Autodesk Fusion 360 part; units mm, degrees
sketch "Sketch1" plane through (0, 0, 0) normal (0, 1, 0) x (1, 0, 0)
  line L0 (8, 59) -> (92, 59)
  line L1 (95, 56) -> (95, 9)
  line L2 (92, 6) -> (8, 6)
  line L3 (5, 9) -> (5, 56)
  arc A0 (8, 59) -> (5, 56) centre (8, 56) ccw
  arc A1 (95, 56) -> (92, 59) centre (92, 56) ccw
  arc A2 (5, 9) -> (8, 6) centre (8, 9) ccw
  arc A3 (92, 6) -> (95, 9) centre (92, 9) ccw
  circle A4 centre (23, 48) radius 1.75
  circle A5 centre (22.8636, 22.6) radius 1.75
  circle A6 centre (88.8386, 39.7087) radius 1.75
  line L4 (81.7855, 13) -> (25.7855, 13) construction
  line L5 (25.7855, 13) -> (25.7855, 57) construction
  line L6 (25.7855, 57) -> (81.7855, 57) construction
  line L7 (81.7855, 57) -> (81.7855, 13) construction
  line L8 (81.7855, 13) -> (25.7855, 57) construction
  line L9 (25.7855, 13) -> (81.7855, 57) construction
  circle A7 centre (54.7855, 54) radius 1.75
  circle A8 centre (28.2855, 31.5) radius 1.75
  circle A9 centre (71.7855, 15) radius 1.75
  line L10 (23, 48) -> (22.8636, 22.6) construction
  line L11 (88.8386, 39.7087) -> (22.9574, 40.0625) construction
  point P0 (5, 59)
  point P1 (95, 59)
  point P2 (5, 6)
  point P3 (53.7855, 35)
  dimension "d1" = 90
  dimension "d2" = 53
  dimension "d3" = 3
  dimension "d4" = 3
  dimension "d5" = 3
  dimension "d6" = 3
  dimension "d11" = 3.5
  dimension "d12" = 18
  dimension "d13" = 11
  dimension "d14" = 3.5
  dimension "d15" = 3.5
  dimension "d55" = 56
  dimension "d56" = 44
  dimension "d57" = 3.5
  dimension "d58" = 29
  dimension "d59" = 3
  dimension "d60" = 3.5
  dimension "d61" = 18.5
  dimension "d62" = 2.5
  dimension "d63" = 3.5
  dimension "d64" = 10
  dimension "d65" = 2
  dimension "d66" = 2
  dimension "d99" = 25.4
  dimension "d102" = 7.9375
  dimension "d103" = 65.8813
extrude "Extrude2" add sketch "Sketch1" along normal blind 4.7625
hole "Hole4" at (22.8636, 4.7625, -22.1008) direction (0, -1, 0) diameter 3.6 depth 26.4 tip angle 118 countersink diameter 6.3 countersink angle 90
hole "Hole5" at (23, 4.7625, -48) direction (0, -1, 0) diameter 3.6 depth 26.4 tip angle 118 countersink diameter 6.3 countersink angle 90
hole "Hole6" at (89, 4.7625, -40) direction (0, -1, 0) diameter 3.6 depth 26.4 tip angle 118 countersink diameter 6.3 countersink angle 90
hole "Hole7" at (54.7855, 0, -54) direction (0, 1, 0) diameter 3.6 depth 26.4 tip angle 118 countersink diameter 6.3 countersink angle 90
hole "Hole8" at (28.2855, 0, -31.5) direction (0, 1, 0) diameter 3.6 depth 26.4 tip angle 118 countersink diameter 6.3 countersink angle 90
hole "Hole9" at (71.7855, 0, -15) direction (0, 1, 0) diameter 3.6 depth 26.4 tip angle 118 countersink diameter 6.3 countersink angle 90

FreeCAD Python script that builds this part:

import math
import FreeCAD as App
import Part
import Sketcher

V = App.Vector
Q = App.Units.Quantity

doc = App.newDocument("Part")
params = doc.addObject("Spreadsheet::Sheet", "Params")
for row, (alias, value) in enumerate([
    ("sketch1_radius", "3 mm"),
    ("sketch1_diameter", "3.5 mm"),
    ("sketch1_width", "84 mm"),
    ("sketch1_height", "47 mm"),
    ("pad1_length", "4.7625 mm"),
    ("sketch2_diameter", "3.6 mm"),
    ("hole_diameter", "3.6 mm"),
    ("hole_depth", "26.4 mm"),
    ("hole_csink_diameter", "6.3 mm"),
    ("sketch3_diameter", "3.6 mm"),
    ("hole2_diameter", "3.6 mm"),
    ("hole2_depth", "26.4 mm"),
    ("hole2_csink_diameter", "6.3 mm"),
    ("sketch4_diameter", "3.6 mm"),
    ("hole3_diameter", "3.6 mm"),
    ("hole3_depth", "26.4 mm"),
    ("hole3_csink_diameter", "6.3 mm"),
    ("sketch5_diameter", "3.6 mm"),
    ("hole4_diameter", "3.6 mm"),
    ("hole4_depth", "26.4 mm"),
    ("hole4_csink_diameter", "6.3 mm"),
    ("sketch6_diameter", "3.6 mm"),
    ("hole5_diameter", "3.6 mm"),
    ("hole5_depth", "26.4 mm"),
    ("hole5_csink_diameter", "6.3 mm"),
    ("sketch7_diameter", "3.6 mm"),
    ("hole6_diameter", "3.6 mm"),
    ("hole6_depth", "26.4 mm"),
    ("hole6_csink_diameter", "6.3 mm"),
], start=1):
    params.set(f"A{row}", alias)
    params.set(f"B{row}", "=" + value)
    params.setAlias(f"B{row}", alias)

body = doc.addObject("PartDesign::Body", "Body")

sketch1 = doc.addObject("Sketcher::SketchObject", "Sketch")
body.addObject(sketch1)
sketch1.AttachmentSupport = (doc.XZ_Plane, [""])
sketch1.MapMode = "FlatFace"
sketch1.addGeometry([
    Part.LineSegment(V(92, -59, 0), V(8, -59, 0)),
    Part.ArcOfCircle(Part.Circle(V(8, -56, 0), V(0, 0, 1), 3), math.radians(180), math.radians(270)),
    Part.LineSegment(V(5, -56, 0), V(5, -9, 0)),
    Part.ArcOfCircle(Part.Circle(V(8, -9, 0), V(0, 0, 1), 3), math.radians(90), math.radians(180)),
    Part.LineSegment(V(8, -6, 0), V(92, -6, 0)),
    Part.ArcOfCircle(Part.Circle(V(92, -9, 0), V(0, 0, 1), 3), math.radians(0), math.radians(90)),
    Part.LineSegment(V(95, -9, 0), V(95, -56, 0)),
    Part.ArcOfCircle(Part.Circle(V(92, -56, 0), V(0, 0, 1), 3), math.radians(-90), math.radians(0)),
    Part.Circle(V(22.9, -22.6, 0), V(0, 0, 1), 1.8),
    Part.Circle(V(28.3, -31.5, 0), V(0, 0, 1), 1.8),
    Part.Circle(V(71.8, -15, 0), V(0, 0, 1), 1.8),
    Part.Circle(V(23, -48, 0), V(0, 0, 1), 1.8),
    Part.Circle(V(88.8, -39.7, 0), V(0, 0, 1), 1.8),
    Part.Circle(V(54.8, -54, 0), V(0, 0, 1), 1.8),
], False)
sketch1.addConstraint([
    Sketcher.Constraint("Tangent", 0, 2, 1, 2),
    Sketcher.Constraint("Tangent", 1, 1, 2, 1),
    Sketcher.Constraint("Tangent", 2, 2, 3, 2),
    Sketcher.Constraint("Tangent", 3, 1, 4, 1),
    Sketcher.Constraint("Tangent", 4, 2, 5, 2),
    Sketcher.Constraint("Tangent", 5, 1, 6, 1),
    Sketcher.Constraint("Tangent", 6, 2, 7, 2),
    Sketcher.Constraint("Tangent", 7, 1, 0, 1),
    Sketcher.Constraint("Horizontal", 0),
    Sketcher.Constraint("Vertical", 2),
    Sketcher.Constraint("Horizontal", 4),
    Sketcher.Constraint("Vertical", 6),
    Sketcher.Constraint("Equal", 1, 3),
    Sketcher.Constraint("Equal", 3, 5),
    Sketcher.Constraint("Equal", 5, 7),
    Sketcher.Constraint("Equal", 8, 9),
    Sketcher.Constraint("Equal", 9, 10),
    Sketcher.Constraint("Equal", 10, 11),
    Sketcher.Constraint("Equal", 11, 12),
    Sketcher.Constraint("Equal", 12, 13),
    Sketcher.Constraint("Radius", 1, Q("3 mm")),
    Sketcher.Constraint("Diameter", 8, Q("3.5 mm")),
    Sketcher.Constraint("DistanceY", 1, 3, -1, 1, Q("56 mm")),
    Sketcher.Constraint("DistanceY", 7, 3, 13, 3, Q("2 mm")),
    Sketcher.Constraint("DistanceY", 0, 2, 11, 3, Q("11 mm")),
    Sketcher.Constraint("DistanceX", 1, 1, 11, 3, Q("18 mm")),
    Sketcher.Constraint("DistanceY", 7, 1, 10, 3, Q("44 mm")),
    Sketcher.Constraint("DistanceY", 11, 3, 8, 3, Q("25.4 mm")),
    Sketcher.Constraint("DistanceX", 0, 2, 0, 1, Q("84 mm")),
    Sketcher.Constraint("DistanceY", 2, 1, 2, 2, Q("47 mm")),
    Sketcher.Constraint("DistanceX", -1, 1, 1, 3, Q("8 mm")),
    Sketcher.Constraint("DistanceX", 13, 3, 10, 3, Q("17 mm")),
    Sketcher.Constraint("DistanceY", 9, 3, -1, 1, Q("31.5 mm")),
    Sketcher.Constraint("DistanceX", 9, 3, 10, 3, Q("43.5 mm")),
    Sketcher.Constraint("DistanceX", 8, 3, 9, 3, Q("5.422 mm")),
    Sketcher.Constraint("DistanceX", 10, 3, 12, 3, Q("17.053 mm")),
    Sketcher.Constraint("DistanceX", -1, 1, 8, 3, Q("22.8636 mm")),
    Sketcher.Constraint("DistanceY", 12, 3, -1, 1, Q("39.7087 mm")),
])
sketch1.setExpression("Constraints[20]", "Params.sketch1_radius")
sketch1.setExpression("Constraints[21]", "Params.sketch1_diameter")
sketch1.setExpression("Constraints[28]", "Params.sketch1_width")
sketch1.setExpression("Constraints[29]", "Params.sketch1_height")
pad1 = doc.addObject("PartDesign::Pad", "Pad")
body.addObject(pad1)
pad1.Profile = sketch1
pad1.setExpression("Length", "Params.pad1_length")
pad1.Reversed = True

sketch2 = doc.addObject("Sketcher::SketchObject", "Sketch001")
body.addObject(sketch2)
sketch2.AttachmentSupport = (doc.XZ_Plane, [""])
sketch2.MapMode = "FlatFace"
sketch2.AttachmentOffset = App.Placement(V(0, 0, -4.7625), App.Rotation())
sketch2.addGeometry(Part.Circle(V(22.9, -22.1, 0), V(0, 0, 1), 1.8), False)
sketch2.addConstraint([
    Sketcher.Constraint("Diameter", 0, Q("3.6 mm")),
    Sketcher.Constraint("DistanceX", -1, 1, 0, 3, Q("22.8636 mm")),
    Sketcher.Constraint("DistanceY", 0, 3, -1, 1, Q("22.1008 mm")),
])
sketch2.setExpression("Constraints[0]", "Params.sketch2_diameter")
doc.recompute()
hole = doc.addObject("PartDesign::Hole", "Hole")
body.addObject(hole)
hole.Profile = sketch2
hole.ThreadType = "None"
hole.setExpression("Diameter", "Params.hole_diameter")
hole.DepthType = "Dimension"
hole.setExpression("Depth", "Params.hole_depth")
hole.DrillPoint = "Angled"
hole.DrillPointAngle = 118
hole.HoleCutType = "Countersink"
hole.setExpression("HoleCutDiameter", "Params.hole_csink_diameter")
hole.HoleCutCountersinkAngle = 90
hole.Reversed = True

sketch3 = doc.addObject("Sketcher::SketchObject", "Sketch002")
body.addObject(sketch3)
sketch3.AttachmentSupport = (doc.XZ_Plane, [""])
sketch3.MapMode = "FlatFace"
sketch3.AttachmentOffset = App.Placement(V(0, 0, -4.7625), App.Rotation())
sketch3.addGeometry(Part.Circle(V(23, -48, 0), V(0, 0, 1), 1.8), False)
sketch3.addConstraint([
    Sketcher.Constraint("Diameter", 0, Q("3.6 mm")),
    Sketcher.Constraint("DistanceX", -1, 1, 0, 3, Q("23 mm")),
    Sketcher.Constraint("DistanceY", 0, 3, -1, 1, Q("48 mm")),
])
sketch3.setExpression("Constraints[0]", "Params.sketch3_diameter")
doc.recompute()
hole2 = doc.addObject("PartDesign::Hole", "Hole001")
body.addObject(hole2)
hole2.Profile = sketch3
hole2.ThreadType = "None"
hole2.setExpression("Diameter", "Params.hole2_diameter")
hole2.DepthType = "Dimension"
hole2.setExpression("Depth", "Params.hole2_depth")
hole2.DrillPoint = "Angled"
hole2.DrillPointAngle = 118
hole2.HoleCutType = "Countersink"
hole2.setExpression("HoleCutDiameter", "Params.hole2_csink_diameter")
hole2.HoleCutCountersinkAngle = 90
hole2.Reversed = True

sketch4 = doc.addObject("Sketcher::SketchObject", "Sketch003")
body.addObject(sketch4)
sketch4.AttachmentSupport = (doc.XZ_Plane, [""])
sketch4.MapMode = "FlatFace"
sketch4.AttachmentOffset = App.Placement(V(0, 0, -4.7625), App.Rotation())
sketch4.addGeometry(Part.Circle(V(89, -40, 0), V(0, 0, 1), 1.8), False)
sketch4.addConstraint([
    Sketcher.Constraint("Diameter", 0, Q("3.6 mm")),
    Sketcher.Constraint("DistanceX", -1, 1, 0, 3, Q("89 mm")),
    Sketcher.Constraint("DistanceY", 0, 3, -1, 1, Q("40 mm")),
])
sketch4.setExpression("Constraints[0]", "Params.sketch4_diameter")
doc.recompute()
hole3 = doc.addObject("PartDesign::Hole", "Hole002")
body.addObject(hole3)
hole3.Profile = sketch4
hole3.ThreadType = "None"
hole3.setExpression("Diameter", "Params.hole3_diameter")
hole3.DepthType = "Dimension"
hole3.setExpression("Depth", "Params.hole3_depth")
hole3.DrillPoint = "Angled"
hole3.DrillPointAngle = 118
hole3.HoleCutType = "Countersink"
hole3.setExpression("HoleCutDiameter", "Params.hole3_csink_diameter")
hole3.HoleCutCountersinkAngle = 90
hole3.Reversed = True

sketch5 = doc.addObject("Sketcher::SketchObject", "Sketch004")
body.addObject(sketch5)
sketch5.AttachmentSupport = (doc.XZ_Plane, [""])
sketch5.MapMode = "FlatFace"
sketch5.addGeometry(Part.Circle(V(54.8, -54, 0), V(0, 0, 1), 1.8), False)
sketch5.addConstraint([
    Sketcher.Constraint("Diameter", 0, Q("3.6 mm")),
    Sketcher.Constraint("DistanceY", 0, 3, -1, 1, Q("54 mm")),
    Sketcher.Constraint("DistanceX", -1, 1, 0, 3, Q("54.7855 mm")),
])
sketch5.setExpression("Constraints[0]", "Params.sketch5_diameter")
doc.recompute()
hole4 = doc.addObject("PartDesign::Hole", "Hole003")
body.addObject(hole4)
hole4.Profile = sketch5
hole4.ThreadType = "None"
hole4.setExpression("Diameter", "Params.hole4_diameter")
hole4.DepthType = "Dimension"
hole4.setExpression("Depth", "Params.hole4_depth")
hole4.DrillPoint = "Angled"
hole4.DrillPointAngle = 118
hole4.HoleCutType = "Countersink"
hole4.setExpression("HoleCutDiameter", "Params.hole4_csink_diameter")
hole4.HoleCutCountersinkAngle = 90

sketch6 = doc.addObject("Sketcher::SketchObject", "Sketch005")
body.addObject(sketch6)
sketch6.AttachmentSupport = (doc.XZ_Plane, [""])
sketch6.MapMode = "FlatFace"
sketch6.addGeometry(Part.Circle(V(28.3, -31.5, 0), V(0, 0, 1), 1.8), False)
sketch6.addConstraint([
    Sketcher.Constraint("Diameter", 0, Q("3.6 mm")),
    Sketcher.Constraint("DistanceY", 0, 3, -1, 1, Q("31.5 mm")),
    Sketcher.Constraint("DistanceX", -1, 1, 0, 3, Q("28.2855 mm")),
])
sketch6.setExpression("Constraints[0]", "Params.sketch6_diameter")
doc.recompute()
hole5 = doc.addObject("PartDesign::Hole", "Hole004")
body.addObject(hole5)
hole5.Profile = sketch6
hole5.ThreadType = "None"
hole5.setExpression("Diameter", "Params.hole5_diameter")
hole5.DepthType = "Dimension"
hole5.setExpression("Depth", "Params.hole5_depth")
hole5.DrillPoint = "Angled"
hole5.DrillPointAngle = 118
hole5.HoleCutType = "Countersink"
hole5.setExpression("HoleCutDiameter", "Params.hole5_csink_diameter")
hole5.HoleCutCountersinkAngle = 90

sketch7 = doc.addObject("Sketcher::SketchObject", "Sketch006")
body.addObject(sketch7)
sketch7.AttachmentSupport = (doc.XZ_Plane, [""])
sketch7.MapMode = "FlatFace"
sketch7.addGeometry(Part.Circle(V(71.8, -15, 0), V(0, 0, 1), 1.8), False)
sketch7.addConstraint([
    Sketcher.Constraint("Diameter", 0, Q("3.6 mm")),
    Sketcher.Constraint("DistanceY", 0, 3, -1, 1, Q("15 mm")),
    Sketcher.Constraint("DistanceX", -1, 1, 0, 3, Q("71.7855 mm")),
])
sketch7.setExpression("Constraints[0]", "Params.sketch7_diameter")
doc.recompute()
hole6 = doc.addObject("PartDesign::Hole", "Hole005")
body.addObject(hole6)
hole6.Profile = sketch7
hole6.ThreadType = "None"
hole6.setExpression("Diameter", "Params.hole6_diameter")
hole6.DepthType = "Dimension"
hole6.setExpression("Depth", "Params.hole6_depth")
hole6.DrillPoint = "Angled"
hole6.DrillPointAngle = 118
hole6.HoleCutType = "Countersink"
hole6.setExpression("HoleCutDiameter", "Params.hole6_csink_diameter")
hole6.HoleCutCountersinkAngle = 90

doc.recompute()
